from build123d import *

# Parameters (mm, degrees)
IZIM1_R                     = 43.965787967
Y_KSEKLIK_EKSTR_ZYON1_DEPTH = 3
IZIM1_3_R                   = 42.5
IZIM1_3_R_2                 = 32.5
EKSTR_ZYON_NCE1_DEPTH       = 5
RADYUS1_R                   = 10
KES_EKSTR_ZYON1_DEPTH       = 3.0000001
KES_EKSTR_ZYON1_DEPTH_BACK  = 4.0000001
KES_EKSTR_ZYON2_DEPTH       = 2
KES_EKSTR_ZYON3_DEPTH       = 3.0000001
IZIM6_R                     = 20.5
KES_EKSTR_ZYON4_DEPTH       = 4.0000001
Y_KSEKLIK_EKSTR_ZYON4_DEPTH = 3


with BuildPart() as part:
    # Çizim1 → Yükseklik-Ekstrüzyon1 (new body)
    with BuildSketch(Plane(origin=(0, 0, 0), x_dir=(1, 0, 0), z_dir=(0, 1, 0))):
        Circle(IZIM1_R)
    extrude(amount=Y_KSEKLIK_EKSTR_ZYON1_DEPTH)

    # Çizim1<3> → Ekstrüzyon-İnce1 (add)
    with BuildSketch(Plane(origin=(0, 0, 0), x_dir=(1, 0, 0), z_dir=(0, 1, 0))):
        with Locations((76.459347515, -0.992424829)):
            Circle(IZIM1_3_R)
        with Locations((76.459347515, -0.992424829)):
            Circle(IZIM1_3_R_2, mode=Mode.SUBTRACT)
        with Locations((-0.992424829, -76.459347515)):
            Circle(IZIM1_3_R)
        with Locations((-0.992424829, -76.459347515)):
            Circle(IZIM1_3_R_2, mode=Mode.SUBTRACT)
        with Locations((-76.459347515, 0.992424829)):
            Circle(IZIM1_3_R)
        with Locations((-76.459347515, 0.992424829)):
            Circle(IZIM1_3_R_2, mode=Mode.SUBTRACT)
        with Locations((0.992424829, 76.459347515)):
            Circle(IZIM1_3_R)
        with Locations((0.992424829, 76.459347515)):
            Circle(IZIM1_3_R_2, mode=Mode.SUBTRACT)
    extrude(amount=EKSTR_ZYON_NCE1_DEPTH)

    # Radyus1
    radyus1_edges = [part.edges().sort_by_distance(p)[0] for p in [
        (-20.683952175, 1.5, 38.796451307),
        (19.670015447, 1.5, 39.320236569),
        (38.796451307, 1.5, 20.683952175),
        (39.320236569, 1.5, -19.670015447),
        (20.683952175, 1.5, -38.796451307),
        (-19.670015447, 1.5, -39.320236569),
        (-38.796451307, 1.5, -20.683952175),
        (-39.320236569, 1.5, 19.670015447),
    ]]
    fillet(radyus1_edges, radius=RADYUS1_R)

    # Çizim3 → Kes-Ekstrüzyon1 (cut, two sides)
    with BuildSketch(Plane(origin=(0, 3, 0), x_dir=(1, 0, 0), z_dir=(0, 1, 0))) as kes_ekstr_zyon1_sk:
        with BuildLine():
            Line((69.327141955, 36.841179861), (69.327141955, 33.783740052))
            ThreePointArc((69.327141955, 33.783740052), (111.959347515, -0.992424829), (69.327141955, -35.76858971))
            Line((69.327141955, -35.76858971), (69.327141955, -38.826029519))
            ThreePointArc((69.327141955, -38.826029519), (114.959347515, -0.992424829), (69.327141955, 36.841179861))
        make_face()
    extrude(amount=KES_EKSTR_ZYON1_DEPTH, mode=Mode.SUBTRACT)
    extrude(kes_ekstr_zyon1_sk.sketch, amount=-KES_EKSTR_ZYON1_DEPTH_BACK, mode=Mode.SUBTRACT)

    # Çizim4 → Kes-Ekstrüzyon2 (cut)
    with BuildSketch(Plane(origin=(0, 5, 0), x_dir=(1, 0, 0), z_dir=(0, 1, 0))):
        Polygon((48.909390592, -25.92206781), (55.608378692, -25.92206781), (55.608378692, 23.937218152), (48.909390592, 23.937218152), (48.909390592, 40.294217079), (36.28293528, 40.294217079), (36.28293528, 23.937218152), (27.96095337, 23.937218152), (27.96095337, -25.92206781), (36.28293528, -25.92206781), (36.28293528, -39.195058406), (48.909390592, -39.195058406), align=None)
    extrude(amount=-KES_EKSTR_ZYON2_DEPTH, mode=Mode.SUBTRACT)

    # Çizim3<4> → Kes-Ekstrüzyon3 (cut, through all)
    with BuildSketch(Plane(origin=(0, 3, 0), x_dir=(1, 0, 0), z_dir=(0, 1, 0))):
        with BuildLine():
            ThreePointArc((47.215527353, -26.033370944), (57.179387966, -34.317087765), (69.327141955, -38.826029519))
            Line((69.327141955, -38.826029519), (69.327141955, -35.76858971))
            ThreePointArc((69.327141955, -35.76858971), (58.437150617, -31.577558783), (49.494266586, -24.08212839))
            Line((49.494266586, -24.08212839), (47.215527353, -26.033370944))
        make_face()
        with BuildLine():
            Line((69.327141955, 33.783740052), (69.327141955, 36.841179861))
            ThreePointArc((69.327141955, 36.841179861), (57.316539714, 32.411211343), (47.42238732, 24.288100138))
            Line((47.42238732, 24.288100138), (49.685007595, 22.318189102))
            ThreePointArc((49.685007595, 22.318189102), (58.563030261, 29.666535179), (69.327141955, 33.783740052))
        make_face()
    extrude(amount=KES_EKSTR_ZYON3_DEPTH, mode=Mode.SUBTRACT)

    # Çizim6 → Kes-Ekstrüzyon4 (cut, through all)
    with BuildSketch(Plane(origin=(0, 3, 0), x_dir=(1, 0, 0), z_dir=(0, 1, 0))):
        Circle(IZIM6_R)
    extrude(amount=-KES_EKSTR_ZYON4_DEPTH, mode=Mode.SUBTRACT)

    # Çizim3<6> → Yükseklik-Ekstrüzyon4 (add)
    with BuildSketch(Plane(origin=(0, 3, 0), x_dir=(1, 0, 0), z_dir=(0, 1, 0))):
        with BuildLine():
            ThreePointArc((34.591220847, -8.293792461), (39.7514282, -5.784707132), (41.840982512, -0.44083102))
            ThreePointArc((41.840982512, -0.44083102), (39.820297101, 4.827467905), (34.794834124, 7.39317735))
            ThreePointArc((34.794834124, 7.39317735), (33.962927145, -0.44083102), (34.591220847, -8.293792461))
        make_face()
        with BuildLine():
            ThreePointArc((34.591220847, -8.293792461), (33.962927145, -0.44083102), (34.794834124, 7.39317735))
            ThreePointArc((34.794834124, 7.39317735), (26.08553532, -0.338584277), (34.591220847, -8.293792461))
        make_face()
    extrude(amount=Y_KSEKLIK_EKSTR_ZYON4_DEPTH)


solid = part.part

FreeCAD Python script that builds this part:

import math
import FreeCAD as App
import Part
import Sketcher
Q = App.Units.Quantity


def edges_at(feature, points):
    """Names of the edges that pass closest to the given points."""
    edges = feature.Shape.Edges
    near = lambda p: min(range(len(edges)), key=lambda i: edges[i].distToShape(Part.Vertex(*p))[0])
    return sorted({f"Edge{near(p) + 1}" for p in points})


def add_polygon(sketch, points):
    """Adds a closed chain of lines whose ends are joined by coincident constraints."""
    first, n = sketch.GeometryCount, len(points)
    for a, b in zip(points, points[1:] + points[:1]):
        sketch.addGeometry(Part.LineSegment(App.Vector(*a, 0), App.Vector(*b, 0)), False)
    for i in range(n):
        sketch.addConstraint(Sketcher.Constraint("Coincident", first + i, 2, first + (i + 1) % n, 1))

doc = App.newDocument("Part")
params = doc.addObject("Spreadsheet::Sheet", "Params")
for row, (alias, value) in enumerate([
    ("pad1_length", "3 mm"),
    ("sketch2_diameter", "85 mm"),
    ("sketch2_diameter2", "65 mm"),
    ("pad2_length", "5 mm"),
    ("fillet_radius", "10 mm"),
    ("sketch3_radius", "35.5 mm"),
    ("sketch3_radius2", "38.5 mm"),
    ("pocket2_length", "2 mm"),
    ("sketch5_radius", "38.5 mm"),
    ("sketch5_radius2", "35.5 mm"),
    ("sketch6_diameter", "41 mm"),
    ("pad3_length", "3 mm"),
], start=1):
    params.set(f"A{row}", alias)
    params.set(f"B{row}", "=" + value)
    params.setAlias(f"B{row}", alias)

body = doc.addObject("PartDesign::Body", "Body")

sketch1 = body.newObject("Sketcher::SketchObject", "Sketch")
sketch1.AttachmentSupport = (doc.getObject("XZ_Plane"), [""])
sketch1.MapMode = "FlatFace"
sketch1.addGeometry(Part.Circle(App.Vector(0, 0, 0), App.Vector(0, 0, 1), 44), False)
sketch1.addConstraint([
    Sketcher.Constraint("Coincident", 0, 3, -1, 1),
    Sketcher.Constraint("Diameter", 0, Q("87.931576 mm")),
])
pad1 = body.newObject("PartDesign::Pad", "Pad")
pad1.Profile = sketch1
pad1.setExpression("Length", "Params.pad1_length")
pad1.Reversed = True

sketch2 = body.newObject("Sketcher::SketchObject", "Sketch001")
sketch2.AttachmentSupport = (doc.getObject("XZ_Plane"), [""])
sketch2.MapMode = "FlatFace"
sketch2.addGeometry([
    Part.Circle(App.Vector(76, 1, 0), App.Vector(0, 0, 1), 42),
    Part.Circle(App.Vector(76, 1, 0), App.Vector(0, 0, 1), 32),
    Part.Circle(App.Vector(-1, 76, 0), App.Vector(0, 0, 1), 42),
    Part.Circle(App.Vector(-1, 76, 0), App.Vector(0, 0, 1), 32),
    Part.Circle(App.Vector(-76, -1, 0), App.Vector(0, 0, 1), 42),
    Part.Circle(App.Vector(-76, -1, 0), App.Vector(0, 0, 1), 32),
    Part.Circle(App.Vector(1, -76, 0), App.Vector(0, 0, 1), 42),
    Part.Circle(App.Vector(1, -76, 0), App.Vector(0, 0, 1), 32),
], False)
sketch2.addConstraint([
    Sketcher.Constraint("Coincident", 1, 3, 0, 3),
    Sketcher.Constraint("Coincident", 3, 3, 2, 3),
    Sketcher.Constraint("Coincident", 5, 3, 4, 3),
    Sketcher.Constraint("Coincident", 7, 3, 6, 3),
    Sketcher.Constraint("Equal", 0, 2),
    Sketcher.Constraint("Equal", 1, 3),
    Sketcher.Constraint("Equal", 2, 4),
    Sketcher.Constraint("Equal", 3, 5),
    Sketcher.Constraint("Equal", 4, 6),
    Sketcher.Constraint("Equal", 5, 7),
    Sketcher.Constraint("Symmetric", 0, 3, 4, 3, -1, 1),
    Sketcher.Constraint("Symmetric", 2, 3, 6, 3, -1, 1),
    Sketcher.Constraint("Diameter", 0, Q("85 mm")),
    Sketcher.Constraint("Diameter", 1, Q("65 mm")),
    Sketcher.Constraint("DistanceY", 4, 3, 0, 3, Q("1.98485 mm")),
    Sketcher.Constraint("DistanceX", 2, 3, 6, 3, Q("1.98485 mm")),
    Sketcher.Constraint("DistanceX", -1, 1, 0, 3, Q("76.459348 mm")),
    Sketcher.Constraint("DistanceY", -1, 1, 2, 3, Q("76.459348 mm")),
])
sketch2.setExpression("Constraints[12]", "Params.sketch2_diameter")
sketch2.setExpression("Constraints[13]", "Params.sketch2_diameter2")
pad2 = body.newObject("PartDesign::Pad", "Pad001")
pad2.Profile = sketch2
pad2.setExpression("Length", "Params.pad2_length")
pad2.Reversed = True
doc.recompute()

fillet = body.newObject("PartDesign::Fillet", "Fillet")
fillet.Base = (pad2, edges_at(pad2, [
    (-20.684, 1.5, 38.796),
    (19.67, 1.5, 39.32),
    (38.796, 1.5, 20.684),
    (39.32, 1.5, -19.67),
    (20.684, 1.5, -38.796),
    (-19.67, 1.5, -39.32),
    (-38.796, 1.5, -20.684),
    (-39.32, 1.5, 19.67),
]))
fillet.setExpression("Radius", "Params.fillet_radius")

sketch3 = body.newObject("Sketcher::SketchObject", "Sketch002")
sketch3.AttachmentSupport = (doc.getObject("XZ_Plane"), [""])
sketch3.MapMode = "FlatFace"
sketch3.AttachmentOffset = App.Placement(App.Vector(0, 0, -3), App.Rotation())
sketch3.addGeometry([
    Part.LineSegment(App.Vector(69.3, -36.8, 0), App.Vector(69.3, -33.8, 0)),
    Part.ArcOfCircle(Part.Circle(App.Vector(76.5, 1, 0), App.Vector(0, 0, 1), 35.5), math.radians(-102), math.radians(102)),
    Part.LineSegment(App.Vector(69.3, 35.8, 0), App.Vector(69.3, 38.8, 0)),
    Part.ArcOfCircle(Part.Circle(App.Vector(76.5, 1, 0), App.Vector(0, 0, 1), 38.5), math.radians(-101), math.radians(101)),
], False)
sketch3.addConstraint([
    Sketcher.Constraint("Coincident", 0, 2, 1, 1),
    Sketcher.Constraint("Coincident", 1, 2, 2, 1),
    Sketcher.Constraint("Coincident", 2, 2, 3, 2),
    Sketcher.Constraint("Coincident", 3, 1, 0, 1),
    Sketcher.Constraint("Vertical", 0),
    Sketcher.Constraint("Vertical", 2),
    Sketcher.Constraint("Coincident", 3, 3, 1, 3),
    Sketcher.Constraint("Vertical", 0, 2, 1, 2),
    Sketcher.Constraint("Radius", 1, Q("35.5 mm")),
    Sketcher.Constraint("Radius", 3, Q("38.5 mm")),
    Sketcher.Constraint("DistanceY", 0, 1, 0, 2, Q("3.05744 mm")),
    Sketcher.Constraint("DistanceX", -1, 1, 0, 2, Q("69.327142 mm")),
    Sketcher.Constraint("DistanceY", 0, 2, -1, 1, Q("33.78374 mm")),
])
sketch3.setExpression("Constraints[8]", "Params.sketch3_radius")
sketch3.setExpression("Constraints[9]", "Params.sketch3_radius2")
pocket1 = body.newObject("PartDesign::Pocket", "Pocket")
pocket1.Profile = sketch3
pocket1.Type = "ThroughAll"
pocket1.Midplane = True

sketch4 = body.newObject("Sketcher::SketchObject", "Sketch003")
sketch4.AttachmentSupport = (doc.getObject("XZ_Plane"), [""])
sketch4.MapMode = "FlatFace"
sketch4.AttachmentOffset = App.Placement(App.Vector(0, 0, -5), App.Rotation())
add_polygon(sketch4, [(49, 26), (56, 26), (56, -24), (49, -24), (49, -40), (36, -40), (36, -24), (28, -24), (28, 26), (36, 26), (36, 39), (49, 39)])
sketch4.addConstraint([
    Sketcher.Constraint("Horizontal", 0),
    Sketcher.Constraint("Vertical", 1),
    Sketcher.Constraint("Horizontal", 2),
    Sketcher.Constraint("Vertical", 3),
    Sketcher.Constraint("Horizontal", 4),
    Sketcher.Constraint("Vertical", 5),
    Sketcher.Constraint("Horizontal", 6),
    Sketcher.Constraint("Vertical", 7),
    Sketcher.Constraint("Horizontal", 8),
    Sketcher.Constraint("Vertical", 9),
    Sketcher.Constraint("Horizontal", 10),
    Sketcher.Constraint("Vertical", 11),
    Sketcher.Constraint("Horizontal", 2, 2, 5, 2),
    Sketcher.Constraint("Horizontal", 0, 2, 7, 2),
    Sketcher.Constraint("Vertical", 5, 2, 8, 2),
    Sketcher.Constraint("Vertical", 3, 2, 10, 2),
    Sketcher.Constraint("DistanceY", 3, 2, 3, 1, Q("16.356999 mm")),
    Sketcher.Constraint("DistanceX", 0, 1, 0, 2, Q("6.698988 mm")),
    Sketcher.Constraint("DistanceX", 6, 2, 6, 1, Q("8.321982 mm")),
    Sketcher.Constraint("DistanceY", 9, 1, 9, 2, Q("13.272991 mm")),
    Sketcher.Constraint("DistanceX", 4, 2, 4, 1, Q("12.626455 mm")),
    Sketcher.Constraint("DistanceY", 1, 2, 1, 1, Q("49.859286 mm")),
    Sketcher.Constraint("DistanceX", -1, 1, 0, 2, Q("55.608379 mm")),
    Sketcher.Constraint("DistanceY", 1, 2, -1, 1, Q("23.937218 mm")),
])
pocket2 = body.newObject("PartDesign::Pocket", "Pocket001")
pocket2.Profile = sketch4
pocket2.setExpression("Length", "Params.pocket2_length")
pocket2.Reversed = True

sketch5 = body.newObject("Sketcher::SketchObject", "Sketch004")
sketch5.AttachmentSupport = (doc.getObject("XZ_Plane"), [""])
sketch5.MapMode = "FlatFace"
sketch5.AttachmentOffset = App.Placement(App.Vector(0, 0, -3), App.Rotation())
sketch5.addGeometry([
    Part.ArcOfCircle(Part.Circle(App.Vector(76.5, 1, 0), App.Vector(0, 0, 1), 38.5), math.radians(101), math.radians(139)),
    Part.LineSegment(App.Vector(69.3, 38.8, 0), App.Vector(69.3, 35.8, 0)),
    Part.ArcOfCircle(Part.Circle(App.Vector(76.5, 1, 0), App.Vector(0, 0, 1), 35.5), math.radians(102), math.radians(139)),
    Part.LineSegment(App.Vector(49.5, 24.1, 0), App.Vector(47.2, 26, 0)),
    Part.LineSegment(App.Vector(69.3, -33.8, 0), App.Vector(69.3, -36.8, 0)),
    Part.ArcOfCircle(Part.Circle(App.Vector(76.5, 1, 0), App.Vector(0, 0, 1), 38.5), math.radians(-139), math.radians(-101)),
    Part.LineSegment(App.Vector(47.4, -24.3, 0), App.Vector(49.7, -22.3, 0)),
    Part.ArcOfCircle(Part.Circle(App.Vector(76.5, 1, 0), App.Vector(0, 0, 1), 35.5), math.radians(-139), math.radians(-102)),
], False)
sketch5.addConstraint([
    Sketcher.Constraint("Coincident", 0, 1, 1, 1),
    Sketcher.Constraint("Coincident", 1, 2, 2, 1),
    Sketcher.Constraint("Coincident", 2, 2, 3, 1),
    Sketcher.Constraint("Coincident", 3, 2, 0, 2),
    Sketcher.Constraint("Coincident", 4, 2, 5, 2),
    Sketcher.Constraint("Coincident", 5, 1, 6, 1),
    Sketcher.Constraint("Coincident", 6, 2, 7, 1),
    Sketcher.Constraint("Coincident", 7, 2, 4, 1),
    Sketcher.Constraint("Vertical", 1),
    Sketcher.Constraint("Vertical", 4),
    Sketcher.Constraint("Coincident", 2, 3, 0, 3),
    Sketcher.Constraint("Coincident", 5, 3, 0, 3),
    Sketcher.Constraint("Coincident", 7, 3, 0, 3),
    Sketcher.Constraint("Equal", 0, 5),
    Sketcher.Constraint("Equal", 2, 7),
    Sketcher.Constraint("Vertical", 1, 2, 4, 2),
    Sketcher.Constraint("Radius", 0, Q("38.5 mm")),
    Sketcher.Constraint("Radius", 2, Q("35.5 mm")),
    Sketcher.Constraint("DistanceY", 1, 2, 1, 1, Q("3.05744 mm")),
    Sketcher.Constraint("DistanceY", 5, 1, -1, 1, Q("24.2881 mm")),
    Sketcher.Constraint("DistanceY", 2, 2, 0, 1, Q("14.743901 mm")),
    Sketcher.Constraint("DistanceX", -1, 1, 0, 1, Q("69.327142 mm")),
    Sketcher.Constraint("DistanceY", -1, 1, 0, 1, Q("38.82603 mm")),
    Sketcher.Constraint("DistanceY", -1, 1, 3, 2, Q("26.033371 mm")),
    Sketcher.Constraint("DistanceY", 6, 2, -1, 1, Q("22.318189 mm")),
])
sketch5.setExpression("Constraints[16]", "Params.sketch5_radius")
sketch5.setExpression("Constraints[17]", "Params.sketch5_radius2")
pocket3 = body.newObject("PartDesign::Pocket", "Pocket002")
pocket3.Profile = sketch5
pocket3.Type = "ThroughAll"

sketch6 = body.newObject("Sketcher::SketchObject", "Sketch005")
sketch6.AttachmentSupport = (doc.getObject("XZ_Plane"), [""])
sketch6.MapMode = "FlatFace"
sketch6.AttachmentOffset = App.Placement(App.Vector(0, 0, -3), App.Rotation())
sketch6.addGeometry(Part.Circle(App.Vector(0, 0, 0), App.Vector(0, 0, 1), 20), False)
sketch6.addConstraint([
    Sketcher.Constraint("Coincident", 0, 3, -1, 1),
    Sketcher.Constraint("Diameter", 0, Q("41 mm")),
])
sketch6.setExpression("Constraints[1]", "Params.sketch6_diameter")
pocket4 = body.newObject("PartDesign::Pocket", "Pocket003")
pocket4.Profile = sketch6
pocket4.Type = "ThroughAll"
pocket4.Reversed = True

sketch7 = body.newObject("Sketcher::SketchObject", "Sketch006")
sketch7.AttachmentSupport = (doc.getObject("XZ_Plane"), [""])
sketch7.MapMode = "FlatFace"
sketch7.AttachmentOffset = App.Placement(App.Vector(0, 0, -3), App.Rotation())
sketch7.addGeometry([
    Part.ArcOfCircle(Part.Circle(App.Vector(34, 0, 0), App.Vector(0, 0, 1), 8), math.radians(0), math.radians(85)),
    Part.ArcOfCircle(Part.Circle(App.Vector(34, 0, 0), App.Vector(0, 0, 1), 8), math.radians(-84), math.radians(0)),
    Part.ArcOfCircle(Part.Circle(App.Vector(34, 0, 0), App.Vector(0, 0, 1), 8), math.radians(85), math.radians(276)),
], False)
sketch7.addConstraint([
    Sketcher.Constraint("Tangent", 0, 1, 1, 2),
    Sketcher.Constraint("Tangent", 1, 1, 2, 2),
    Sketcher.Constraint("Tangent", 2, 1, 0, 2),
    Sketcher.Constraint("Horizontal", 2, 3, 0, 1),
    Sketcher.Constraint("Radius", 0, Q("7.878055 mm")),
    Sketcher.Constraint("DistanceY", -1, 1, 0, 3, Q("0.440831 mm")),
    Sketcher.Constraint("DistanceX", -1, 1, 2, 1, Q("34.591221 mm")),
    Sketcher.Constraint("DistanceY", 1, 1, 1, 3, Q("7.834008 mm")),
    Sketcher.Constraint("DistanceY", 1, 3, 2, 1, Q("7.852961 mm")),
])
pad3 = body.newObject("PartDesign::Pad", "Pad002")
pad3.Profile = sketch7
pad3.setExpression("Length", "Params.pad3_length")
pad3.Reversed = True

doc.recompute()
